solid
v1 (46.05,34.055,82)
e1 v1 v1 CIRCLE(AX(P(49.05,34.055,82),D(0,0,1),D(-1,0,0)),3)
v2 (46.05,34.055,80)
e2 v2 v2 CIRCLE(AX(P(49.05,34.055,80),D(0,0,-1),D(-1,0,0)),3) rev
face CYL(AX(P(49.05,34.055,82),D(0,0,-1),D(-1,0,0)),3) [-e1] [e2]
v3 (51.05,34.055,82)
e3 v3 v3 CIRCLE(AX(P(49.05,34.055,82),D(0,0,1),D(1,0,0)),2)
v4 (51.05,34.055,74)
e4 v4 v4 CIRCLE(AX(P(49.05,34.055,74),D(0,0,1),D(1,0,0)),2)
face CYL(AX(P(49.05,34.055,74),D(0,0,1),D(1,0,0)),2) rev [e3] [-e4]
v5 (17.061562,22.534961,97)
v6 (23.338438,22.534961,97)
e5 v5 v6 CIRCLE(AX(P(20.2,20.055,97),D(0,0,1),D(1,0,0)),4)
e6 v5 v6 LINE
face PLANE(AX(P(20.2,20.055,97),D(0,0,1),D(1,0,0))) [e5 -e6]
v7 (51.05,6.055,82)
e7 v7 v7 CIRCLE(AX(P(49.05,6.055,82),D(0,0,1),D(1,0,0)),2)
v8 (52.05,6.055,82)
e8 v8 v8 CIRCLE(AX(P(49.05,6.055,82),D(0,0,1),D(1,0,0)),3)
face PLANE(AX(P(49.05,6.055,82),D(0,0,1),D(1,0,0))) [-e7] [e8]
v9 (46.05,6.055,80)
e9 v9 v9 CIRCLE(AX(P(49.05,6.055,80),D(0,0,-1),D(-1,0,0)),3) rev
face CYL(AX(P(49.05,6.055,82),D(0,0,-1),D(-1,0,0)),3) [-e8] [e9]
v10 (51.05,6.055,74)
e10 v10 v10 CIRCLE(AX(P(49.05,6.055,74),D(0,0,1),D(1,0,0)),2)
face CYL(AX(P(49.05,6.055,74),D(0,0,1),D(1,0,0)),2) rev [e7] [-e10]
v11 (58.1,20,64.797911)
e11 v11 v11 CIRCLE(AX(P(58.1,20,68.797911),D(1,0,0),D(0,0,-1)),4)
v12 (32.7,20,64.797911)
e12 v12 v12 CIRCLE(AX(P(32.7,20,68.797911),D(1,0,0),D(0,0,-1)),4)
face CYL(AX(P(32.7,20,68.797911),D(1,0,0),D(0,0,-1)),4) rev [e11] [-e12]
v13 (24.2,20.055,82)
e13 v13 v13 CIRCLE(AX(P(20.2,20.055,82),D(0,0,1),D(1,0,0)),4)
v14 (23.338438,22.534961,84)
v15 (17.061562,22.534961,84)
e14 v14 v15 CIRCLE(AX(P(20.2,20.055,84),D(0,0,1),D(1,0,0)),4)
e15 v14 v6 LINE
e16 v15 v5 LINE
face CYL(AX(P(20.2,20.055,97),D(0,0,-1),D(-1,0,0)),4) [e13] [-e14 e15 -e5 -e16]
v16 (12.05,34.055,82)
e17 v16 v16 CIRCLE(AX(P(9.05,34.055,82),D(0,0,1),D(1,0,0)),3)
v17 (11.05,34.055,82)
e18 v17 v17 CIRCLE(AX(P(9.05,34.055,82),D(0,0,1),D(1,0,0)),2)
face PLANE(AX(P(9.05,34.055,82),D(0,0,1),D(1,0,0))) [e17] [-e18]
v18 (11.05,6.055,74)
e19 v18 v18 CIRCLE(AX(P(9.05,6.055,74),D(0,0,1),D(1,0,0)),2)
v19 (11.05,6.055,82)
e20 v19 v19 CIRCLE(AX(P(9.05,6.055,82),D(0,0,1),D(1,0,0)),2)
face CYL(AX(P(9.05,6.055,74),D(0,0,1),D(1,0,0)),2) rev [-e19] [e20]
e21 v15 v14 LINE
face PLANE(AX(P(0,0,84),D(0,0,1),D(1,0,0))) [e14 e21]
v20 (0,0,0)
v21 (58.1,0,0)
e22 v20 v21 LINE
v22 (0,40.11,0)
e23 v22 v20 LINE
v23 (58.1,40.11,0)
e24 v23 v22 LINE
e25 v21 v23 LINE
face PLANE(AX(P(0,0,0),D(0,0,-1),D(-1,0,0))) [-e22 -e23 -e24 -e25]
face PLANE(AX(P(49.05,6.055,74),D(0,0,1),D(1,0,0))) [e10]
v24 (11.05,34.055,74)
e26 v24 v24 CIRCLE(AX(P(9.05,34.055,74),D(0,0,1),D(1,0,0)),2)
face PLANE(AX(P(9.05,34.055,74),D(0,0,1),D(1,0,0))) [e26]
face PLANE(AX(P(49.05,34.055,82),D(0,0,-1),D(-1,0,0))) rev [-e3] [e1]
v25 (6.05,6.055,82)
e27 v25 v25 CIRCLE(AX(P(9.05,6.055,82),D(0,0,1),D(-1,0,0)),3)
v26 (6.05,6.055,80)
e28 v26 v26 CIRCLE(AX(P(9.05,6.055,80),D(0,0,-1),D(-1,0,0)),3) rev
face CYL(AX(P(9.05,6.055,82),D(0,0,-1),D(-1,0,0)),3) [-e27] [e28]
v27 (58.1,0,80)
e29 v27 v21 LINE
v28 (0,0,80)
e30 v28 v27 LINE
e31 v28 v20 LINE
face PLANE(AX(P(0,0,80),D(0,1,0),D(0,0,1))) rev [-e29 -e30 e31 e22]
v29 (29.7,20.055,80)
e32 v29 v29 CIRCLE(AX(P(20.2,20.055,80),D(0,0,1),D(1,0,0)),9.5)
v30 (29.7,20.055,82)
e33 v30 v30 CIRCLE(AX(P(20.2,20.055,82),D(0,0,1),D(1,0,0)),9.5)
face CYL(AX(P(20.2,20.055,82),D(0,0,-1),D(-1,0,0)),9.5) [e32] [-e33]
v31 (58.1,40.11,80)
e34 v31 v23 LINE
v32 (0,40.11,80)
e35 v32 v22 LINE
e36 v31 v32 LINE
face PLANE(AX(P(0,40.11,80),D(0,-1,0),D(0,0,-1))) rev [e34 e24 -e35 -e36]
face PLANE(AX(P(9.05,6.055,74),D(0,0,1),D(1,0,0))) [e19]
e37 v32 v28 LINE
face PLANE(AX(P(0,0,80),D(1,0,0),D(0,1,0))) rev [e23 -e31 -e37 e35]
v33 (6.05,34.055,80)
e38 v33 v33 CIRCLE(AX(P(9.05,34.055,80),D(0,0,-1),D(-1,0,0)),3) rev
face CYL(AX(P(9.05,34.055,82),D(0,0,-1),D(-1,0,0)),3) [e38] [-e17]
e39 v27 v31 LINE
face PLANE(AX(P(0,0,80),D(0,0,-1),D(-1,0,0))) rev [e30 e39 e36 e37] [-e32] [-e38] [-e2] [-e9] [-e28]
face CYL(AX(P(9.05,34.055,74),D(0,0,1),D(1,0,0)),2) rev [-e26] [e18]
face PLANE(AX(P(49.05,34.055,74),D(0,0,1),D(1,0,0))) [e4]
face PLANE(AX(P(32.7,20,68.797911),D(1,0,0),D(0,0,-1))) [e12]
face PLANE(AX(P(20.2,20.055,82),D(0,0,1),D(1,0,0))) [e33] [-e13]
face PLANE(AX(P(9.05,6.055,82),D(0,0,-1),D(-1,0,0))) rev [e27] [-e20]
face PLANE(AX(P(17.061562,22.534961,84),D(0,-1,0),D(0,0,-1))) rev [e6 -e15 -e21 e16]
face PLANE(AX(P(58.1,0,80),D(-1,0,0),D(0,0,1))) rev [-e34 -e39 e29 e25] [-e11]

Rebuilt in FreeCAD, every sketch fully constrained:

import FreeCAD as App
import Part
import Sketcher


def add_polygon(sketch, points):
    """Adds a closed chain of lines whose ends are joined by coincident constraints."""
    first, n = sketch.GeometryCount, len(points)
    for a, b in zip(points, points[1:] + points[:1]):
        sketch.addGeometry(Part.LineSegment(App.Vector(*a, 0), App.Vector(*b, 0)), False)
    for i in range(n):
        sketch.addConstraint(Sketcher.Constraint("Coincident", first + i, 2, first + (i + 1) % n, 1))

doc = App.newDocument("Part")
body = doc.addObject("PartDesign::Body", "Body")

sketch1 = body.newObject("Sketcher::SketchObject", "Sketch")
sketch1.AttachmentSupport = (doc.getObject("XY_Plane"), [""])
sketch1.MapMode = "FlatFace"
add_polygon(sketch1, [(0, 40.11), (0, 0), (58.1, 0), (58.1, 40.11)])
sketch1.addConstraint([
    Sketcher.Constraint("Vertical", 0),
    Sketcher.Constraint("Horizontal", 1),
    Sketcher.Constraint("Vertical", 2),
    Sketcher.Constraint("Horizontal", 3),
    Sketcher.Constraint("Coincident", 0, 2, -1, 1),
    Sketcher.Constraint("DistanceX", 1, 1, 1, 2, 58.1),
    Sketcher.Constraint("DistanceY", 0, 2, 0, 1, 40.11),
])
pad1 = body.newObject("PartDesign::Pad", "Pad")
pad1.Profile = sketch1
pad1.Length = 80

sketch2 = body.newObject("Sketcher::SketchObject", "Sketch001")
sketch2.AttachmentSupport = (doc.getObject("XY_Plane"), [""])
sketch2.MapMode = "FlatFace"
sketch2.AttachmentOffset = App.Placement(App.Vector(0, 0, 80), App.Rotation())
sketch2.addGeometry(Part.Circle(App.Vector(20.2, 20.055, 0), App.Vector(0, 0, 1), 9.5), False)
sketch2.addConstraint([
    Sketcher.Constraint("Diameter", 0, 19.0),
    Sketcher.Constraint("DistanceX", -1, 1, 0, 3, 20.2),
    Sketcher.Constraint("DistanceY", -1, 1, 0, 3, 20.055),
])
pad2 = body.newObject("PartDesign::Pad", "Pad001")
pad2.Profile = sketch2
pad2.Length = 2

sketch3 = body.newObject("Sketcher::SketchObject", "Sketch002")
sketch3.AttachmentSupport = (doc.getObject("XY_Plane"), [""])
sketch3.MapMode = "FlatFace"
sketch3.AttachmentOffset = App.Placement(App.Vector(0, 0, 82), App.Rotation())
sketch3.addGeometry(Part.Circle(App.Vector(20.2, 20.055, 0), App.Vector(0, 0, 1), 4), False)
sketch3.addConstraint([
    Sketcher.Constraint("Diameter", 0, 8.0),
    Sketcher.Constraint("DistanceX", -1, 1, 0, 3, 20.2),
    Sketcher.Constraint("DistanceY", -1, 1, 0, 3, 20.055),
])
pad3 = body.newObject("PartDesign::Pad", "Pad002")
pad3.Profile = sketch3
pad3.Length = 15

sketch4 = body.newObject("Sketcher::SketchObject", "Sketch003")
sketch4.AttachmentSupport = (doc.getObject("XY_Plane"), [""])
sketch4.MapMode = "FlatFace"
sketch4.AttachmentOffset = App.Placement(App.Vector(0, 0, 97), App.Rotation())
add_polygon(sketch4, [(17.061562, 24.533847), (17.061562, 22.534961), (23.338438, 22.534961), (23.338438, 24.533847)])
sketch4.addConstraint([
    Sketcher.Constraint("Vertical", 0),
    Sketcher.Constraint("Horizontal", 1),
    Sketcher.Constraint("Vertical", 2),
    Sketcher.Constraint("Horizontal", 3),
    Sketcher.Constraint("DistanceX", 1, 1, 1, 2, 6.276876),
    Sketcher.Constraint("DistanceY", 0, 2, 0, 1, 1.998886),
    Sketcher.Constraint("DistanceX", -1, 1, 0, 2, 17.061562),
    Sketcher.Constraint("DistanceY", -1, 1, 0, 2, 22.534961),
])
pocket1 = body.newObject("PartDesign::Pocket", "Pocket")
pocket1.Profile = sketch4
pocket1.Length = 13

sketch5 = body.newObject("Sketcher::SketchObject", "Sketch004")
sketch5.AttachmentSupport = (doc.getObject("XY_Plane"), [""])
sketch5.MapMode = "FlatFace"
sketch5.AttachmentOffset = App.Placement(App.Vector(0, 0, 80), App.Rotation())
sketch5.addGeometry([
    Part.Circle(App.Vector(9.05, 34.055, 0), App.Vector(0, 0, 1), 3),
    Part.Circle(App.Vector(49.05, 34.055, 0), App.Vector(0, 0, 1), 3),
    Part.Circle(App.Vector(49.05, 6.055, 0), App.Vector(0, 0, 1), 3),
    Part.Circle(App.Vector(9.05, 6.055, 0), App.Vector(0, 0, 1), 3),
], False)
sketch5.addConstraint([
    Sketcher.Constraint("Equal", 0, 1),
    Sketcher.Constraint("Equal", 1, 2),
    Sketcher.Constraint("Equal", 2, 3),
    Sketcher.Constraint("Horizontal", 0, 3, 1, 3),
    Sketcher.Constraint("Horizontal", 2, 3, 3, 3),
    Sketcher.Constraint("Vertical", 1, 3, 2, 3),
    Sketcher.Constraint("Vertical", 0, 3, 3, 3),
    Sketcher.Constraint("Diameter", 0, 6.0),
    Sketcher.Constraint("DistanceX", 0, 3, 1, 3, 40.0),
    Sketcher.Constraint("DistanceY", 2, 3, 1, 3, 28.0),
    Sketcher.Constraint("DistanceX", -1, 1, 0, 3, 9.05),
    Sketcher.Constraint("DistanceY", -1, 1, 0, 3, 34.055),
])
pad4 = body.newObject("PartDesign::Pad", "Pad003")
pad4.Profile = sketch5
pad4.Length = 2

sketch6 = body.newObject("Sketcher::SketchObject", "Sketch005")
sketch6.AttachmentSupport = (doc.getObject("XY_Plane"), [""])
sketch6.MapMode = "FlatFace"
sketch6.AttachmentOffset = App.Placement(App.Vector(0, 0, 82), App.Rotation())
sketch6.addGeometry([
    Part.Circle(App.Vector(9.05, 34.055, 0), App.Vector(0, 0, 1), 2),
    Part.Circle(App.Vector(49.05, 34.055, 0), App.Vector(0, 0, 1), 2),
    Part.Circle(App.Vector(49.05, 6.055, 0), App.Vector(0, 0, 1), 2),
    Part.Circle(App.Vector(9.05, 6.055, 0), App.Vector(0, 0, 1), 2),
], False)
sketch6.addConstraint([
    Sketcher.Constraint("Equal", 0, 1),
    Sketcher.Constraint("Equal", 1, 2),
    Sketcher.Constraint("Equal", 2, 3),
    Sketcher.Constraint("Horizontal", 0, 3, 1, 3),
    Sketcher.Constraint("Horizontal", 2, 3, 3, 3),
    Sketcher.Constraint("Vertical", 1, 3, 2, 3),
    Sketcher.Constraint("Vertical", 0, 3, 3, 3),
    Sketcher.Constraint("Diameter", 0, 4.0),
    Sketcher.Constraint("DistanceX", 0, 3, 1, 3, 40.0),
    Sketcher.Constraint("DistanceY", 2, 3, 1, 3, 28.0),
    Sketcher.Constraint("DistanceX", -1, 1, 0, 3, 9.05),
    Sketcher.Constraint("DistanceY", -1, 1, 0, 3, 34.055),
])
pocket2 = body.newObject("PartDesign::Pocket", "Pocket001")
pocket2.Profile = sketch6
pocket2.Length = 8

sketch7 = body.newObject("Sketcher::SketchObject", "Sketch006")
sketch7.AttachmentSupport = (doc.getObject("YZ_Plane"), [""])
sketch7.MapMode = "FlatFace"
sketch7.AttachmentOffset = App.Placement(App.Vector(0, 0, 58.1), App.Rotation())
sketch7.addGeometry(Part.Circle(App.Vector(20, 68.797911, 0), App.Vector(0, 0, 1), 4), False)
sketch7.addConstraint([
    Sketcher.Constraint("Diameter", 0, 8.0),
    Sketcher.Constraint("DistanceX", -1, 1, 0, 3, 20.0),
    Sketcher.Constraint("DistanceY", -1, 1, 0, 3, 68.797911),
])
pocket3 = body.newObject("PartDesign::Pocket", "Pocket002")
pocket3.Profile = sketch7
pocket3.Length = 25.4

doc.recompute()
